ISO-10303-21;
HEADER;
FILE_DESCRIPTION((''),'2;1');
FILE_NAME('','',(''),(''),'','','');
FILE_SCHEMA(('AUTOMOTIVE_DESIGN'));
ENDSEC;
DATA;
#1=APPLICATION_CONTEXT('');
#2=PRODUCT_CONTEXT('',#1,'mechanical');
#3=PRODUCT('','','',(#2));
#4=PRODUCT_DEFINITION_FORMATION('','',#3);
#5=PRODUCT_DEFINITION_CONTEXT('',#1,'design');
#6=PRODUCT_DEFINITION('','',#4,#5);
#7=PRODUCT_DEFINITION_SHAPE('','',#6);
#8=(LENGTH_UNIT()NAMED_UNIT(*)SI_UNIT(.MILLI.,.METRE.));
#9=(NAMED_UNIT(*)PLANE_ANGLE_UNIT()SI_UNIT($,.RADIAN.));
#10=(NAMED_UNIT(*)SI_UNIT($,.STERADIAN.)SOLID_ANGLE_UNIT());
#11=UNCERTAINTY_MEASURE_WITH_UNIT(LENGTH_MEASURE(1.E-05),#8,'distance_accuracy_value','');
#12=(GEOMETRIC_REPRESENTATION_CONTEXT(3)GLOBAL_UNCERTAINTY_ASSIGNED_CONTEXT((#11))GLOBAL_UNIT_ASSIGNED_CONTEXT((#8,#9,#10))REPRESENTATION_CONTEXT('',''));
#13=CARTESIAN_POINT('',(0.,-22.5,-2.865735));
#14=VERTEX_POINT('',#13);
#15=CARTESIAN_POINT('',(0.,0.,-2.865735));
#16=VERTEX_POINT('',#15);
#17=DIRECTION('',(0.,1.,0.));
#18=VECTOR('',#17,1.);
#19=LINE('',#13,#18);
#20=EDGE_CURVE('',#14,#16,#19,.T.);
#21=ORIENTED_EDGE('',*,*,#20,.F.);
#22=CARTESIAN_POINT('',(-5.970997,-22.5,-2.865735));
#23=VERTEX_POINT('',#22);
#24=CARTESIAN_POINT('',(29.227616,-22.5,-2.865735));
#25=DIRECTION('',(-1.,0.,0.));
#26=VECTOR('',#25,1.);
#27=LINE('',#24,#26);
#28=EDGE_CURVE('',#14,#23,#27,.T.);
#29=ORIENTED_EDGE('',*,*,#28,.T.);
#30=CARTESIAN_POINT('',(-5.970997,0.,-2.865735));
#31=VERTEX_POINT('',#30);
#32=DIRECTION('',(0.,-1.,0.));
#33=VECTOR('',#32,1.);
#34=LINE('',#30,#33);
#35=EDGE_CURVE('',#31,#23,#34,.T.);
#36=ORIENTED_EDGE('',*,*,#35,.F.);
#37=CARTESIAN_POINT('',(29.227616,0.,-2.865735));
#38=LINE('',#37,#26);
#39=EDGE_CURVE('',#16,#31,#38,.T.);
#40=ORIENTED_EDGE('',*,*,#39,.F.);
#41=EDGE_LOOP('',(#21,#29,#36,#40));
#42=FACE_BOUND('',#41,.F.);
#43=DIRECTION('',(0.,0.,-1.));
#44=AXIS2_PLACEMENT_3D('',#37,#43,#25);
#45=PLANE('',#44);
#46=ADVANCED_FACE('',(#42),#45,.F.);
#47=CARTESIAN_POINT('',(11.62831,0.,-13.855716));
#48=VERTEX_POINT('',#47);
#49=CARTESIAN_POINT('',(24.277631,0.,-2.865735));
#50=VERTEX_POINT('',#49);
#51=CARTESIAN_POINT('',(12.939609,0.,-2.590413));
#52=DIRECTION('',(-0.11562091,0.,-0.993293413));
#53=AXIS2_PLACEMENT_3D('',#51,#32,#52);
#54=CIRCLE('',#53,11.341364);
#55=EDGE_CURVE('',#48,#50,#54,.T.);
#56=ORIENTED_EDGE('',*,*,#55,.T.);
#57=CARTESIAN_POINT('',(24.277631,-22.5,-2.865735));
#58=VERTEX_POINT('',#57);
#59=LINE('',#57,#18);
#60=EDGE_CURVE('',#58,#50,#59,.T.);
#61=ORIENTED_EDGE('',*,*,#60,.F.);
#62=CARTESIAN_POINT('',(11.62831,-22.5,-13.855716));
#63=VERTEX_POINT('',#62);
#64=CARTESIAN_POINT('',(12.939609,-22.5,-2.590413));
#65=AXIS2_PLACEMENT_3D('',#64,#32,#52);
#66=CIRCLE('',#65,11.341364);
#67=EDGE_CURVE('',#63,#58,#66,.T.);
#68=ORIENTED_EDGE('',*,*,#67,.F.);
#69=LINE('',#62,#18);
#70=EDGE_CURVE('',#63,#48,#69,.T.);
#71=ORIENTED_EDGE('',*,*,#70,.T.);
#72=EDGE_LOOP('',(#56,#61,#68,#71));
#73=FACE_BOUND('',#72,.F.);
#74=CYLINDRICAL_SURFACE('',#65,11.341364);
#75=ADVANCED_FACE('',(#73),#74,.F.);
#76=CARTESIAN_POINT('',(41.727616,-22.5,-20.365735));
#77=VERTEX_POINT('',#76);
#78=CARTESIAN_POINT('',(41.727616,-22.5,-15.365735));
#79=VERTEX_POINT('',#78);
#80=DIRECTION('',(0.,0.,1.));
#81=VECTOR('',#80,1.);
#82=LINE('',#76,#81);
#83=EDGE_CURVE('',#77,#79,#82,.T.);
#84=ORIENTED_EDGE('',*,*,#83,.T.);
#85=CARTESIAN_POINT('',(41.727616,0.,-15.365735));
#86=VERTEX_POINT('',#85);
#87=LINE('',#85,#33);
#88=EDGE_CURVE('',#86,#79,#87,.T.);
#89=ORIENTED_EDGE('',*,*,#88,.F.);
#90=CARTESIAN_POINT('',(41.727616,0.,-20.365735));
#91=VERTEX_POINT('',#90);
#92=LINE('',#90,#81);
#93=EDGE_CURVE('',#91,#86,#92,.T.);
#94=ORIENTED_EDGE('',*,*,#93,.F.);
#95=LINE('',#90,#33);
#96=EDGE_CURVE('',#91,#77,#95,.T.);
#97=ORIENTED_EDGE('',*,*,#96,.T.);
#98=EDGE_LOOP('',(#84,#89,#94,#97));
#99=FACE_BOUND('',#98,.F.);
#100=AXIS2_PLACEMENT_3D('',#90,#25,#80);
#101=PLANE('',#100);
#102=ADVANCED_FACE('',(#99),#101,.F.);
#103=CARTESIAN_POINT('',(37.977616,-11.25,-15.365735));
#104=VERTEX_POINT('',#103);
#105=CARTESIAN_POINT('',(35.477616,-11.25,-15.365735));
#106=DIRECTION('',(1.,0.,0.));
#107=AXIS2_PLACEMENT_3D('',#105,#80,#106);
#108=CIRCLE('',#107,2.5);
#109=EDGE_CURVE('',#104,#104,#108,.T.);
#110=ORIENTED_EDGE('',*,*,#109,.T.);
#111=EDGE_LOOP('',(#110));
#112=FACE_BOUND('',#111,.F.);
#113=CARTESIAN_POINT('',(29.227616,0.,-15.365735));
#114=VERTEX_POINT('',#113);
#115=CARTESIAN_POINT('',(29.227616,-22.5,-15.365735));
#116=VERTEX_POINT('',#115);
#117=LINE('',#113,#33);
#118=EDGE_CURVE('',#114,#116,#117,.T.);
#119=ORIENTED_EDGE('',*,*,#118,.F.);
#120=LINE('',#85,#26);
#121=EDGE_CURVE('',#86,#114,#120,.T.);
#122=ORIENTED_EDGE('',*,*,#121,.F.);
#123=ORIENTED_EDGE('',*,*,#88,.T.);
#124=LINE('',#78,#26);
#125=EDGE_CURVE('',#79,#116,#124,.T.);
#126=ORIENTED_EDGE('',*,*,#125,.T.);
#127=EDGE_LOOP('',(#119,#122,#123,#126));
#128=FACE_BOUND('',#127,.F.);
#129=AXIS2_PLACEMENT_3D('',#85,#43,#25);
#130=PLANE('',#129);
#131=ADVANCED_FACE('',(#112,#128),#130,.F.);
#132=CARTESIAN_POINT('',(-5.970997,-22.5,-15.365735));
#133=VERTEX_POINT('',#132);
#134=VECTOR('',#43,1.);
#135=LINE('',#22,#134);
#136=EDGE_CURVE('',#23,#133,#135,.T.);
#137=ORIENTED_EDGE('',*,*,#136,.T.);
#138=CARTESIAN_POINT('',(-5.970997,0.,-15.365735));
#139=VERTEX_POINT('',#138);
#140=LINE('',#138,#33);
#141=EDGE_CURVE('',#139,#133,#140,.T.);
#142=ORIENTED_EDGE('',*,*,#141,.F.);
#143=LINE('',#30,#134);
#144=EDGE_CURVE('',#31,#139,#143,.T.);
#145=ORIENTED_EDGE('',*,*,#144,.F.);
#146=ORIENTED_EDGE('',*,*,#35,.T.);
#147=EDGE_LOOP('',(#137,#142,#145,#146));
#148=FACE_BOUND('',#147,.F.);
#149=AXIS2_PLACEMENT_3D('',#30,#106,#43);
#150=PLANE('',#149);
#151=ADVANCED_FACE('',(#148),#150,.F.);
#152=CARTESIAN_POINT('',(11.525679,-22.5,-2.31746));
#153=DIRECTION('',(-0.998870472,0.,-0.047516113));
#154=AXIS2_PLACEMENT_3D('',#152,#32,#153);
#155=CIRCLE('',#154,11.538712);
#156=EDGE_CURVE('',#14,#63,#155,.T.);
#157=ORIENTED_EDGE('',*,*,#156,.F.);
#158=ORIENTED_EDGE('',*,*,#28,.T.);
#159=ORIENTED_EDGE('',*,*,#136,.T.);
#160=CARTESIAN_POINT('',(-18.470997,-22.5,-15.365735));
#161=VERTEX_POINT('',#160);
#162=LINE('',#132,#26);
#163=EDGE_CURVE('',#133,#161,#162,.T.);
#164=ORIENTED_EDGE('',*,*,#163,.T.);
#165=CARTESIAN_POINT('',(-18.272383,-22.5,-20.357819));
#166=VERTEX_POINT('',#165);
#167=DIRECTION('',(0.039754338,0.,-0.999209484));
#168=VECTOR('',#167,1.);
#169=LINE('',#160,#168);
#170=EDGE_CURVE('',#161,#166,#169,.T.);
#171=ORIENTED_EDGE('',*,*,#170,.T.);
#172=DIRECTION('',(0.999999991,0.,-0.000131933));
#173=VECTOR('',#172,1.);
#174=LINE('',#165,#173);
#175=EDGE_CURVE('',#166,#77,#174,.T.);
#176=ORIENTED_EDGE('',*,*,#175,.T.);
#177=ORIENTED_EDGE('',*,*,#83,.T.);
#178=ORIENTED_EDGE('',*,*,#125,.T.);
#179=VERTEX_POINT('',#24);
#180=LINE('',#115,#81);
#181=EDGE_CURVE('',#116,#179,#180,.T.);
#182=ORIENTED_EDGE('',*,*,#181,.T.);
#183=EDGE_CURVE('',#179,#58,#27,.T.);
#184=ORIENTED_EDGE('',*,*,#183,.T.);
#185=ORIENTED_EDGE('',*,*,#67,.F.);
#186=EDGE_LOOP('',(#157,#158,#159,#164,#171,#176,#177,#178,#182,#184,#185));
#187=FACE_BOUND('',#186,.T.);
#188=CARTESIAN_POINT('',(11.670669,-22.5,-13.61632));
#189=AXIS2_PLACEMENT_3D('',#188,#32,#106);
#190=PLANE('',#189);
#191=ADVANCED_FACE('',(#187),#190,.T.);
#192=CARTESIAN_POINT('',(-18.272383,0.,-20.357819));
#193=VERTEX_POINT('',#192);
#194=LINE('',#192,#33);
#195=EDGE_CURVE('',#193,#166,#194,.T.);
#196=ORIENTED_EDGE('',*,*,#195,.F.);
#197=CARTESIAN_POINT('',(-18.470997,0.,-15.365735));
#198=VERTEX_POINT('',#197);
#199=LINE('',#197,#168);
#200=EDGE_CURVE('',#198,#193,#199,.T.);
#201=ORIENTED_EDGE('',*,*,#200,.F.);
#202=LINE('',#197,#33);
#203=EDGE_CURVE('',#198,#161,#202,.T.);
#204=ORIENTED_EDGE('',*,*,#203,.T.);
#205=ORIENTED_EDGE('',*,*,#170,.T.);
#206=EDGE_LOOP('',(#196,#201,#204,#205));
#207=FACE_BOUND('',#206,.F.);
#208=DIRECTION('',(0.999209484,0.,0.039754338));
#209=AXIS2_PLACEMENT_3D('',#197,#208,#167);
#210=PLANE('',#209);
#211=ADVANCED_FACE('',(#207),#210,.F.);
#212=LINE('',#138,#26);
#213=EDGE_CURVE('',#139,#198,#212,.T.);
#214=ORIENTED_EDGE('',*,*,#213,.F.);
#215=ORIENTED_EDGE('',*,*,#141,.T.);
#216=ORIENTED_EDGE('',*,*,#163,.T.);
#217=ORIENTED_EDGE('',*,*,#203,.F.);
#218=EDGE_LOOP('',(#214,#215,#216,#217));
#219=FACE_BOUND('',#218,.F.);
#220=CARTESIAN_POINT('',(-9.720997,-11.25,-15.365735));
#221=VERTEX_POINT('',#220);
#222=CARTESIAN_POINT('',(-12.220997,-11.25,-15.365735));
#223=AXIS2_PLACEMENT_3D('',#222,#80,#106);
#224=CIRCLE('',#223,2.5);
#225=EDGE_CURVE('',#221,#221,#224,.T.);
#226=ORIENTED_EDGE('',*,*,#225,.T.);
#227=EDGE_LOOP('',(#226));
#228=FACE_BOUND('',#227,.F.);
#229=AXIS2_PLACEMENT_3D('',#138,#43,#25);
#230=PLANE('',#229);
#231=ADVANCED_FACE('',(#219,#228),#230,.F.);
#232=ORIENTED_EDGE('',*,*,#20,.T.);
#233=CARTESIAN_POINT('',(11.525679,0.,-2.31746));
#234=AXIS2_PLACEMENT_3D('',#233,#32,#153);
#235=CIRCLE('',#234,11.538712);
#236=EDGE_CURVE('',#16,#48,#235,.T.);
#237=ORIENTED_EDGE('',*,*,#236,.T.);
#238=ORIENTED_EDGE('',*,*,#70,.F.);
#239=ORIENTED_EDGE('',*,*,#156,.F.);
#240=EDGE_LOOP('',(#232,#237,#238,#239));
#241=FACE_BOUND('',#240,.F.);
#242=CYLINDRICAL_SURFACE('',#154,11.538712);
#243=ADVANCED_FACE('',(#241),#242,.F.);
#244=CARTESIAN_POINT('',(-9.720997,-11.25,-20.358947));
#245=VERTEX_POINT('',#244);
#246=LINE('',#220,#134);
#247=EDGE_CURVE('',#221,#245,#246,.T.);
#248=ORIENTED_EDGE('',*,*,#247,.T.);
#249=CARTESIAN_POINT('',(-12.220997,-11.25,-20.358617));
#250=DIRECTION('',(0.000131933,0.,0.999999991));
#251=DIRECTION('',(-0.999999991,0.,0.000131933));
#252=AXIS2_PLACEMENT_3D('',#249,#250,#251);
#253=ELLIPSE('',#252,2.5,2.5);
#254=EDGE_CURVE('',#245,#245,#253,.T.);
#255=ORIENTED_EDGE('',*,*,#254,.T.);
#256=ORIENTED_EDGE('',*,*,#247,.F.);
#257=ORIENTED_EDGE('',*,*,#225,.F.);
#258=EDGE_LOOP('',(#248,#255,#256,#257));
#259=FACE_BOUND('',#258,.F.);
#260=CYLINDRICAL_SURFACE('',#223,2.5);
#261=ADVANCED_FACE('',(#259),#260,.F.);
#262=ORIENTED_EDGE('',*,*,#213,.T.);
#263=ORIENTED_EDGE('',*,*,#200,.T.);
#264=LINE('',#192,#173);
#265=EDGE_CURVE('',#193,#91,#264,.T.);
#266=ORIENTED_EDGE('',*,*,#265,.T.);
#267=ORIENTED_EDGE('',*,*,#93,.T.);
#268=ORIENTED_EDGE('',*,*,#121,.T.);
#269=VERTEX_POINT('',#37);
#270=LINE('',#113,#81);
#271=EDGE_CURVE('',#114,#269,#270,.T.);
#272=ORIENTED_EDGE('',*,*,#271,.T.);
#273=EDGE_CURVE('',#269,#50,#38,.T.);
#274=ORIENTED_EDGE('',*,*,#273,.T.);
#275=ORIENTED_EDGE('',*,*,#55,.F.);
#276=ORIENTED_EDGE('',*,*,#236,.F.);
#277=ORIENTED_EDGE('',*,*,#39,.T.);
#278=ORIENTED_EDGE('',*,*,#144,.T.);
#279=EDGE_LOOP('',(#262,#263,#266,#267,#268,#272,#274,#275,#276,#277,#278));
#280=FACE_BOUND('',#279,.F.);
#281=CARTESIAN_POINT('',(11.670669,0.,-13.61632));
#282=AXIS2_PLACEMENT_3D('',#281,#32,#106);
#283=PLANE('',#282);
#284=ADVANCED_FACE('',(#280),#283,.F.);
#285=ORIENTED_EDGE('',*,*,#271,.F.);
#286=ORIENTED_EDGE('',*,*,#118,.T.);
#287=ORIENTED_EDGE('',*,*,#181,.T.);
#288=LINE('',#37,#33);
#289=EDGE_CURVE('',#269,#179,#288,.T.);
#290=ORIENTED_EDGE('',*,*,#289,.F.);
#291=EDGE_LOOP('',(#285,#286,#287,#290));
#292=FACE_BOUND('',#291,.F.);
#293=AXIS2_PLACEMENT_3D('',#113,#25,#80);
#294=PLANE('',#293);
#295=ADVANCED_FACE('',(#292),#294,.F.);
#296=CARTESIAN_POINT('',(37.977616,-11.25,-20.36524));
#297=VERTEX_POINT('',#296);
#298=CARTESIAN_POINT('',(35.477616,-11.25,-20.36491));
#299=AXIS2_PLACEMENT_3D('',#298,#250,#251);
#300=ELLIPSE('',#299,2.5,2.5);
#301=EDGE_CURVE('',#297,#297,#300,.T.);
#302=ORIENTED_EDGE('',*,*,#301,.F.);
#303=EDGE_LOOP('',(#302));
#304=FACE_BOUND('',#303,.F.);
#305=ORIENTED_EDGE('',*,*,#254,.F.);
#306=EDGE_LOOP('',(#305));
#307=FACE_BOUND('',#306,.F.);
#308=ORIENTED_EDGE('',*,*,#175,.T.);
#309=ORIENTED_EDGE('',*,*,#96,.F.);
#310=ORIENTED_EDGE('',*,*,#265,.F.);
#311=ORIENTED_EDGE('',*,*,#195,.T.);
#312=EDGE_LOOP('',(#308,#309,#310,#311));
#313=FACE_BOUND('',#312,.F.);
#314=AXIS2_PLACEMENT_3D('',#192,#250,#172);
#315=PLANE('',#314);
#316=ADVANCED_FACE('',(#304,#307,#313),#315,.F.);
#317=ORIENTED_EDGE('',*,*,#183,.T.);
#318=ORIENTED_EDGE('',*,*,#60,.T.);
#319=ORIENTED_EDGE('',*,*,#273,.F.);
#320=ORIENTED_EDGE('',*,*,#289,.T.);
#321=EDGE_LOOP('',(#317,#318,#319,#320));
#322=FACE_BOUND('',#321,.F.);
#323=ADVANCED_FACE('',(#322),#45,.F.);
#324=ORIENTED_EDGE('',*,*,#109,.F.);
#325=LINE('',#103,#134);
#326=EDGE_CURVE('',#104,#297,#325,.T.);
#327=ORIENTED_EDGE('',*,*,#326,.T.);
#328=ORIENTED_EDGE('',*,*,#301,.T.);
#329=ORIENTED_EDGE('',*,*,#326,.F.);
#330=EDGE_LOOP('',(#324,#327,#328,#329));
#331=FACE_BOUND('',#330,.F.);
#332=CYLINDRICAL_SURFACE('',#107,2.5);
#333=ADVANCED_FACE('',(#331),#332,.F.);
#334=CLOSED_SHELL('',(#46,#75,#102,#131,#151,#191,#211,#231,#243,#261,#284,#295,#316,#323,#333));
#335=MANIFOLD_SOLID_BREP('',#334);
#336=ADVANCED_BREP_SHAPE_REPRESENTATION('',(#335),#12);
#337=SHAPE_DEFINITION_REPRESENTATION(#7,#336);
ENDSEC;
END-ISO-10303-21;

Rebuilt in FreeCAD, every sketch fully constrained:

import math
import FreeCAD as App
import Part
import Sketcher
Q = App.Units.Quantity


def add_polygon(sketch, points):
    """Adds a closed chain of lines whose ends are joined by coincident constraints."""
    first, n = sketch.GeometryCount, len(points)
    for a, b in zip(points, points[1:] + points[:1]):
        sketch.addGeometry(Part.LineSegment(App.Vector(*a, 0), App.Vector(*b, 0)), False)
    for i in range(n):
        sketch.addConstraint(Sketcher.Constraint("Coincident", first + i, 2, first + (i + 1) % n, 1))

doc = App.newDocument("Part")
body = doc.addObject("PartDesign::Body", "Body")

# Sketch on XZ plane
sketch1 = doc.addObject("Sketcher::SketchObject", "Sketch")
body.addObject(sketch1)
sketch1.AttachmentSupport = (doc.XZ_Plane, [""])
sketch1.MapMode = "FlatFace"
add_polygon(sketch1, [(-18.5, -15.4), (-18.3, -20.4), (41.7, -20.4), (41.7, -15.4), (29.2, -15.4), (29.2, -2.9), (-6, -2.9), (-6, -15.4)])  # lines 0-7
sketch1.addConstraint([
    Sketcher.Constraint("Vertical", 2),
    Sketcher.Constraint("Horizontal", 3),
    Sketcher.Constraint("Vertical", 4),
    Sketcher.Constraint("Horizontal", 5),
    Sketcher.Constraint("Vertical", 6),
    Sketcher.Constraint("Horizontal", 7),
    Sketcher.Constraint("Horizontal", 3, 2, 6, 2),
    Sketcher.Constraint("Equal", 3, 7),
    Sketcher.Constraint("Equal", 7, 4),
    Sketcher.Constraint("DistanceY", 2, 1, 2, 2, Q("5 mm")),
    Sketcher.Constraint("Distance", 1, Q("60 mm")),
    Sketcher.Constraint("DistanceX", 3, 2, 3, 1, Q("12.5 mm")),
    Sketcher.Constraint("DistanceX", 5, 2, 5, 1, Q("35.198613 mm")),
    Sketcher.Constraint("DistanceY", 0, 2, -1, 1, Q("20.357819 mm")),
    Sketcher.Constraint("Distance", 0, Q("4.996033 mm")),
    Sketcher.Constraint("DistanceX", 0, 2, -1, 1, Q("18.272383 mm")),
])
pad1 = doc.addObject("PartDesign::Pad", "Pad")
body.addObject(pad1)
pad1.Profile = sketch1
pad1.Length = 22.5

# Sketch on XY plane
sketch2 = doc.addObject("Sketcher::SketchObject", "Sketch001")
body.addObject(sketch2)
sketch2.AttachmentSupport = (doc.XY_Plane, [""])
sketch2.MapMode = "FlatFace"
sketch2.AttachmentOffset = App.Placement(App.Vector(0, 0, -15.365735), App.Rotation())
sketch2.addGeometry(Part.Circle(App.Vector(35.5, -11.2, 0), App.Vector(0, 0, 1), 2.5), False)
sketch2.addConstraint([
    Sketcher.Constraint("Diameter", 0, Q("5 mm")),
    Sketcher.Constraint("DistanceY", 0, 3, -1, 1, Q("11.25 mm")),
    Sketcher.Constraint("DistanceX", -1, 1, 0, 3, Q("35.477616 mm")),
])
pocket1 = doc.addObject("PartDesign::Pocket", "Pocket")
body.addObject(pocket1)
pocket1.Profile = sketch2
pocket1.Type = "ThroughAll"

# Sketch on XY plane
sketch3 = doc.addObject("Sketcher::SketchObject", "Sketch002")
body.addObject(sketch3)
sketch3.AttachmentSupport = (doc.XY_Plane, [""])
sketch3.MapMode = "FlatFace"
sketch3.AttachmentOffset = App.Placement(App.Vector(0, 0, -15.365735), App.Rotation())
sketch3.addGeometry(Part.Circle(App.Vector(-12.2, -11.2, 0), App.Vector(0, 0, 1), 2.5), False)
sketch3.addConstraint([
    Sketcher.Constraint("Diameter", 0, Q("5 mm")),
    Sketcher.Constraint("DistanceY", 0, 3, -1, 1, Q("11.25 mm")),
    Sketcher.Constraint("DistanceX", 0, 3, -1, 1, Q("12.220997 mm")),
])
pocket2 = doc.addObject("PartDesign::Pocket", "Pocket001")
body.addObject(pocket2)
pocket2.Profile = sketch3
pocket2.Type = "ThroughAll"

# Sketch on XZ plane
sketch4 = doc.addObject("Sketcher::SketchObject", "Sketch003")
body.addObject(sketch4)
sketch4.AttachmentSupport = (doc.XZ_Plane, [""])
sketch4.MapMode = "FlatFace"
sketch4.AttachmentOffset = App.Placement(App.Vector(0, 0, 22.5), App.Rotation())
sketch4.addGeometry([
    Part.ArcOfCircle(Part.Circle(App.Vector(12, -2, 0), App.Vector(0, 0, 1), 12), math.radians(-177), math.radians(-89)),
    Part.ArcOfCircle(Part.Circle(App.Vector(13, -3, 0), App.Vector(0, 0, 1), 11), math.radians(-97), math.radians(-1)),
    Part.LineSegment(App.Vector(24, -3, 0), App.Vector(0, -3, 0)),
], False)
sketch4.addConstraint([
    Sketcher.Constraint("Coincident", 0, 2, 1, 1),
    Sketcher.Constraint("Coincident", 1, 2, 2, 1),
    Sketcher.Constraint("Coincident", 2, 2, 0, 1),
    Sketcher.Constraint("Horizontal", 2),
    Sketcher.Constraint("PointOnObject", 2, 2, -2),
    Sketcher.Constraint("Radius", 0, Q("11.538712 mm")),
    Sketcher.Constraint("Radius", 1, Q("11.341364 mm")),
    Sketcher.Constraint("DistanceX", 2, 2, 2, 1, Q("24.277631 mm")),
    Sketcher.Constraint("DistanceX", 0, 2, 1, 3, Q("1.311299 mm")),
    Sketcher.Constraint("DistanceX", -1, 1, 0, 3, Q("11.525679 mm")),
    Sketcher.Constraint("DistanceY", 0, 3, -1, 1, Q("2.31746 mm")),
])
pocket3 = doc.addObject("PartDesign::Pocket", "Pocket002")
body.addObject(pocket3)
pocket3.Profile = sketch4
pocket3.Type = "ThroughAll"

doc.recompute()
